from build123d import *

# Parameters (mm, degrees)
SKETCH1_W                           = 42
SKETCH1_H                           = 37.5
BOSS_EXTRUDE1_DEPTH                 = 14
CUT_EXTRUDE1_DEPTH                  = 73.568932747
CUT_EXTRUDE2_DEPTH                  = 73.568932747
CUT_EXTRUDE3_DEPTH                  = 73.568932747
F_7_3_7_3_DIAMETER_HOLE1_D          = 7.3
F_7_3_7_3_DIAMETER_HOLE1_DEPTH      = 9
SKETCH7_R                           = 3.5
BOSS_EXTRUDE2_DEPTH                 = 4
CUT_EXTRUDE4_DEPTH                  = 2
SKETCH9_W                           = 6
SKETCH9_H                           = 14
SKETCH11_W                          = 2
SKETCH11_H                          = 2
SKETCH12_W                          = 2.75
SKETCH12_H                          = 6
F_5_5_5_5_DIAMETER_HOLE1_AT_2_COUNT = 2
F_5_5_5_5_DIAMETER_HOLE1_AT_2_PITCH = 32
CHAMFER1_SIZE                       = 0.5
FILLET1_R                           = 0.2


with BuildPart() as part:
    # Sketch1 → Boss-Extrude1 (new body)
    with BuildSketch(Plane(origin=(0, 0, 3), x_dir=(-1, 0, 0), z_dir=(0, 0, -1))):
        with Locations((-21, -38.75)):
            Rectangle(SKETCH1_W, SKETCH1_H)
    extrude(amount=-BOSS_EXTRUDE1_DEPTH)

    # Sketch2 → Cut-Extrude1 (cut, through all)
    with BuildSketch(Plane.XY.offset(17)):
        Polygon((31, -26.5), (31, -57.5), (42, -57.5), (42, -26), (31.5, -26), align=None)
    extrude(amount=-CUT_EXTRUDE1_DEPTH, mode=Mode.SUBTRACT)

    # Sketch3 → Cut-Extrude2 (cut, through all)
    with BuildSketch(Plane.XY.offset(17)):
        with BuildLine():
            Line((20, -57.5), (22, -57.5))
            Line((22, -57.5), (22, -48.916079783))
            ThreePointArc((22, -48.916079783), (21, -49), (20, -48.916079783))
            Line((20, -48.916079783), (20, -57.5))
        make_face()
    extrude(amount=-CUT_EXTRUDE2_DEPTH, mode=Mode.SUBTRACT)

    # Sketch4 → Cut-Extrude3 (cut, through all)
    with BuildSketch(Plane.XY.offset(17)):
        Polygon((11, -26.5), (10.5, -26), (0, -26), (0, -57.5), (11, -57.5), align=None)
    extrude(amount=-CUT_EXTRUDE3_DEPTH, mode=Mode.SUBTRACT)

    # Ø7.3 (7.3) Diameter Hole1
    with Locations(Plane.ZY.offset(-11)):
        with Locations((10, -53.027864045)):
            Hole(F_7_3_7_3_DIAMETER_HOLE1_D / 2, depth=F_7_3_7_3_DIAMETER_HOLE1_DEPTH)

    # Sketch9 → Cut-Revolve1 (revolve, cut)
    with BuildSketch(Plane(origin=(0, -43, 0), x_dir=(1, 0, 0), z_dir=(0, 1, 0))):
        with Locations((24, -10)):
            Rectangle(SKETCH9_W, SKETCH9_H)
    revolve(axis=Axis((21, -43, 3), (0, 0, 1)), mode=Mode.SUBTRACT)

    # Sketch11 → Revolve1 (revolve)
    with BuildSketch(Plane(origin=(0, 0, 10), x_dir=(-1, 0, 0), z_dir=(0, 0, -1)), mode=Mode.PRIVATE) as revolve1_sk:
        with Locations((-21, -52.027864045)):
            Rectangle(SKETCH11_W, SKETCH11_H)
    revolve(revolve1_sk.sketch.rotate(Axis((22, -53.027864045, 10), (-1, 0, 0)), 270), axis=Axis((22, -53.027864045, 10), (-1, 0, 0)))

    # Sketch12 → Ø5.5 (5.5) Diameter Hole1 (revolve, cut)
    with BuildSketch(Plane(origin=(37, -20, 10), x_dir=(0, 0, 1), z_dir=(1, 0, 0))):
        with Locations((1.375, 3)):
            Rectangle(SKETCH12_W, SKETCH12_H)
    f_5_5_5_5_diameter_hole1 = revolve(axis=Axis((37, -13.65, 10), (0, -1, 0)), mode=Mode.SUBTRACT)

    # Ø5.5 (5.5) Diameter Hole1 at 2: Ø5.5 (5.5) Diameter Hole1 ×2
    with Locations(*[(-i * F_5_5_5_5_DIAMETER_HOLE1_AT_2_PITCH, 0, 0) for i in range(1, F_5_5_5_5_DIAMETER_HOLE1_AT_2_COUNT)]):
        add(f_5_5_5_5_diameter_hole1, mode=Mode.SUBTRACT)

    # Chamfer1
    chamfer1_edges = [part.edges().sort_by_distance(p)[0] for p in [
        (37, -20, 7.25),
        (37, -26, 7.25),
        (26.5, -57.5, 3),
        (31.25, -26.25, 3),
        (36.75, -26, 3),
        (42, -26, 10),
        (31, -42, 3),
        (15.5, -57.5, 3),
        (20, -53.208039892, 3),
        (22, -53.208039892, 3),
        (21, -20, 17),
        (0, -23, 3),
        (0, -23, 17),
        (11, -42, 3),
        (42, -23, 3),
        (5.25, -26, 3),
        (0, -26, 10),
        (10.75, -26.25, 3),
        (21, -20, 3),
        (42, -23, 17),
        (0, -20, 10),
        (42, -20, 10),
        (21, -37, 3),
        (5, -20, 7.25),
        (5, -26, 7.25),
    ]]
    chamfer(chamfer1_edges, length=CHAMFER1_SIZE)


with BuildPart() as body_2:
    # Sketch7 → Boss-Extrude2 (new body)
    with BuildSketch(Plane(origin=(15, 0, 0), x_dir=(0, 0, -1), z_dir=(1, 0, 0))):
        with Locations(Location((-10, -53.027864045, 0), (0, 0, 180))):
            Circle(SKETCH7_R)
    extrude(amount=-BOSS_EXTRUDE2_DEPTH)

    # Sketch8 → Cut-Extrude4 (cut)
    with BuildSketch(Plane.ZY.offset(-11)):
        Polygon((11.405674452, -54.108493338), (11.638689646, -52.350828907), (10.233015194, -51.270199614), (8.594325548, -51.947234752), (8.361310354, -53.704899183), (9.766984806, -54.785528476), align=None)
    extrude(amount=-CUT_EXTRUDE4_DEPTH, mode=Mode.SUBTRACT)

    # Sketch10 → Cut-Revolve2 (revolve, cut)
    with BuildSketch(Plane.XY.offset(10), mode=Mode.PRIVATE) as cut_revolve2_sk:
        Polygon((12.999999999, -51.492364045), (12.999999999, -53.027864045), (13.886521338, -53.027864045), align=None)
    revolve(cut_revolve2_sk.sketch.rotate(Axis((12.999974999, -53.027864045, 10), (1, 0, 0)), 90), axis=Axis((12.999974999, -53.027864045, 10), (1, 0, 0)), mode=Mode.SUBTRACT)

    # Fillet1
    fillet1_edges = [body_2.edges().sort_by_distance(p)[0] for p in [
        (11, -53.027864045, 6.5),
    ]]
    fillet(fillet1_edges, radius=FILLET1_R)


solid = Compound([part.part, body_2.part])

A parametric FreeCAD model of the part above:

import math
import FreeCAD as App
import Part
import Sketcher

V = App.Vector
Q = App.Units.Quantity


def edges_at(feature, points):
    """Names of the edges that pass closest to the given points."""
    edges = feature.Shape.Edges
    near = lambda p: min(range(len(edges)), key=lambda i: edges[i].distToShape(Part.Vertex(*p))[0])
    return sorted({f"Edge{near(p) + 1}" for p in points})

doc = App.newDocument("Part")
params = doc.addObject("Spreadsheet::Sheet", "Params")
for row, (alias, value) in enumerate([
    ("sketch1_width", "42 mm"),
    ("sketch1_height", "37.5 mm"),
    ("pad1_length", "14 mm"),
    ("sketch2_width", "11 mm"),
    ("sketch2_height", "31 mm"),
    ("sketch2_width2", "10.5 mm"),
    ("sketch3_radius", "6 mm"),
    ("sketch3_width", "2 mm"),
    ("sketch4_width", "11 mm"),
    ("sketch4_height", "31 mm"),
    ("sketch4_width2", "10.5 mm"),
    ("sketch5_diameter", "7.3 mm"),
    ("hole_diameter", "7.3 mm"),
    ("hole_depth", "9 mm"),
    ("sketch6_width", "6 mm"),
    ("sketch6_height", "14 mm"),
    ("groove_angle", "360 deg"),
    ("sketch7_width", "2 mm"),
    ("revolution_angle", "360 deg"),
    ("sketch8_width", "6 mm"),
    ("sketch8_height", "2.75 mm"),
    ("groove2_angle", "360 deg"),
    ("linearpattern_pitch", "32 mm"),
    ("chamfer_size", "0.5 mm"),
    ("sketch9_diameter", "7 mm"),
    ("pad2_length", "4 mm"),
    ("pocket4_length", "2 mm"),
    ("groove3_angle", "360 deg"),
    ("fillet_radius", "0.2 mm"),
], start=1):
    params.set(f"A{row}", alias)
    params.set(f"B{row}", "=" + value)
    params.setAlias(f"B{row}", alias)

body = doc.addObject("PartDesign::Body", "Body")

# Sketch on XY plane
sketch1 = body.newObject("Sketcher::SketchObject", "Sketch")
sketch1.AttachmentSupport = (doc.getObject("XY_Plane"), [""])
sketch1.MapMode = "FlatFace"
sketch1.AttachmentOffset = App.Placement(V(0, 0, 3), App.Rotation())
sketch1.addGeometry(Part.LineSegment(V(42, -20, 0), V(42, -58, 0)), False)
sketch1.addGeometry(Part.LineSegment(V(42, -58, 0), V(0, -58, 0)), False)
sketch1.addGeometry(Part.LineSegment(V(0, -58, 0), V(0, -20, 0)), False)
sketch1.addGeometry(Part.LineSegment(V(0, -20, 0), V(42, -20, 0)), False)
sketch1.addConstraint(Sketcher.Constraint("Coincident", 0, 2, 1, 1))
sketch1.addConstraint(Sketcher.Constraint("Coincident", 1, 2, 2, 1))
sketch1.addConstraint(Sketcher.Constraint("Coincident", 2, 2, 3, 1))
sketch1.addConstraint(Sketcher.Constraint("Coincident", 3, 2, 0, 1))
sketch1.addConstraint(Sketcher.Constraint("Vertical", 0))
sketch1.addConstraint(Sketcher.Constraint("Horizontal", 1))
sketch1.addConstraint(Sketcher.Constraint("Vertical", 2))
sketch1.addConstraint(Sketcher.Constraint("Horizontal", 3))
sketch1.addConstraint(Sketcher.Constraint("PointOnObject", 1, 2, -2))
sketch1.addConstraint(Sketcher.Constraint("DistanceX", 1, 2, 1, 1, 42.0))
sketch1.addConstraint(Sketcher.Constraint("DistanceY", 0, 2, 0, 1, 37.5))
sketch1.addConstraint(Sketcher.Constraint("DistanceY", 2, 2, -1, 1, 20.0))
sketch1.setExpression("Constraints[9]", "Params.sketch1_width")
sketch1.setExpression("Constraints[10]", "Params.sketch1_height")
pad1 = body.newObject("PartDesign::Pad", "Pad")
pad1.Profile = sketch1
pad1.setExpression("Length", "Params.pad1_length")

# Sketch on XY plane
sketch2 = body.newObject("Sketcher::SketchObject", "Sketch001")
sketch2.AttachmentSupport = (doc.getObject("XY_Plane"), [""])
sketch2.MapMode = "FlatFace"
sketch2.AttachmentOffset = App.Placement(V(0, 0, 17), App.Rotation())
sketch2.addGeometry(Part.LineSegment(V(31, -26.5, 0), V(31, -57.5, 0)), False)
sketch2.addGeometry(Part.LineSegment(V(31, -57.5, 0), V(42, -57.5, 0)), False)
sketch2.addGeometry(Part.LineSegment(V(42, -57.5, 0), V(42, -26, 0)), False)
sketch2.addGeometry(Part.LineSegment(V(42, -26, 0), V(31.5, -26, 0)), False)
sketch2.addGeometry(Part.LineSegment(V(31.5, -26, 0), V(31, -26.5, 0)), False)
sketch2.addConstraint(Sketcher.Constraint("Coincident", 0, 2, 1, 1))
sketch2.addConstraint(Sketcher.Constraint("Coincident", 1, 2, 2, 1))
sketch2.addConstraint(Sketcher.Constraint("Coincident", 2, 2, 3, 1))
sketch2.addConstraint(Sketcher.Constraint("Coincident", 3, 2, 4, 1))
sketch2.addConstraint(Sketcher.Constraint("Coincident", 4, 2, 0, 1))
sketch2.addConstraint(Sketcher.Constraint("Vertical", 0))
sketch2.addConstraint(Sketcher.Constraint("Horizontal", 1))
sketch2.addConstraint(Sketcher.Constraint("Vertical", 2))
sketch2.addConstraint(Sketcher.Constraint("Horizontal", 3))
sketch2.addConstraint(Sketcher.Constraint("DistanceX", 1, 1, 1, 2, 11.0))
sketch2.addConstraint(Sketcher.Constraint("DistanceY", 0, 2, 0, 1, 31.0))
sketch2.addConstraint(Sketcher.Constraint("Angle", 4, Q("-135 deg")))
sketch2.addConstraint(Sketcher.Constraint("DistanceX", 3, 2, 3, 1, 10.5))
sketch2.addConstraint(Sketcher.Constraint("DistanceX", -1, 1, 0, 2, 31.0))
sketch2.addConstraint(Sketcher.Constraint("DistanceY", 2, 2, -1, 1, 26.0))
sketch2.setExpression("Constraints[9]", "Params.sketch2_width")
sketch2.setExpression("Constraints[10]", "Params.sketch2_height")
sketch2.setExpression("Constraints[12]", "Params.sketch2_width2")
pocket1 = body.newObject("PartDesign::Pocket", "Pocket")
pocket1.Profile = sketch2
pocket1.Type = "ThroughAll"

# Sketch on XY plane
sketch3 = body.newObject("Sketcher::SketchObject", "Sketch002")
sketch3.AttachmentSupport = (doc.getObject("XY_Plane"), [""])
sketch3.MapMode = "FlatFace"
sketch3.AttachmentOffset = App.Placement(V(0, 0, 17), App.Rotation())
sketch3.addGeometry(Part.LineSegment(V(20, -57.5, 0), V(22, -57.5, 0)), False)
sketch3.addGeometry(Part.LineSegment(V(22, -57.5, 0), V(22, -48.9, 0)), False)
sketch3.addGeometry(Part.ArcOfCircle(Part.Circle(V(21, -43, 0), V(0, 0, 1), 6), math.radians(-99.59), math.radians(-80.41)), False)
sketch3.addGeometry(Part.LineSegment(V(20, -48.9, 0), V(20, -57.5, 0)), False)
sketch3.addConstraint(Sketcher.Constraint("Coincident", 0, 2, 1, 1))
sketch3.addConstraint(Sketcher.Constraint("Coincident", 1, 2, 2, 2))
sketch3.addConstraint(Sketcher.Constraint("Coincident", 2, 1, 3, 1))
sketch3.addConstraint(Sketcher.Constraint("Coincident", 3, 2, 0, 1))
sketch3.addConstraint(Sketcher.Constraint("Horizontal", 0))
sketch3.addConstraint(Sketcher.Constraint("Vertical", 1))
sketch3.addConstraint(Sketcher.Constraint("Vertical", 3))
sketch3.addConstraint(Sketcher.Constraint("Horizontal", 1, 2, 2, 1))
sketch3.addConstraint(Sketcher.Constraint("Radius", 2, 6.0))
sketch3.addConstraint(Sketcher.Constraint("DistanceX", 0, 1, 0, 2, 2.0))
sketch3.addConstraint(Sketcher.Constraint("DistanceX", -1, 1, 2, 3, 21.0))
sketch3.addConstraint(Sketcher.Constraint("DistanceY", 2, 3, -1, 1, 43.0))
sketch3.addConstraint(Sketcher.Constraint("DistanceY", 0, 2, -1, 1, 57.5))
sketch3.setExpression("Constraints[8]", "Params.sketch3_radius")
sketch3.setExpression("Constraints[9]", "Params.sketch3_width")
pocket2 = body.newObject("PartDesign::Pocket", "Pocket001")
pocket2.Profile = sketch3
pocket2.Type = "ThroughAll"

# Sketch on XY plane
sketch4 = body.newObject("Sketcher::SketchObject", "Sketch003")
sketch4.AttachmentSupport = (doc.getObject("XY_Plane"), [""])
sketch4.MapMode = "FlatFace"
sketch4.AttachmentOffset = App.Placement(V(0, 0, 17), App.Rotation())
sketch4.addGeometry(Part.LineSegment(V(11, -26.5, 0), V(10.5, -26, 0)), False)
sketch4.addGeometry(Part.LineSegment(V(10.5, -26, 0), V(0, -26, 0)), False)
sketch4.addGeometry(Part.LineSegment(V(0, -26, 0), V(0, -57.5, 0)), False)
sketch4.addGeometry(Part.LineSegment(V(0, -57.5, 0), V(11, -57.5, 0)), False)
sketch4.addGeometry(Part.LineSegment(V(11, -57.5, 0), V(11, -26.5, 0)), False)
sketch4.addConstraint(Sketcher.Constraint("Coincident", 0, 2, 1, 1))
sketch4.addConstraint(Sketcher.Constraint("Coincident", 1, 2, 2, 1))
sketch4.addConstraint(Sketcher.Constraint("Coincident", 2, 2, 3, 1))
sketch4.addConstraint(Sketcher.Constraint("Coincident", 3, 2, 4, 1))
sketch4.addConstraint(Sketcher.Constraint("Coincident", 4, 2, 0, 1))
sketch4.addConstraint(Sketcher.Constraint("Horizontal", 1))
sketch4.addConstraint(Sketcher.Constraint("Vertical", 2))
sketch4.addConstraint(Sketcher.Constraint("Horizontal", 3))
sketch4.addConstraint(Sketcher.Constraint("Vertical", 4))
sketch4.addConstraint(Sketcher.Constraint("PointOnObject", 1, 2, -2))
sketch4.addConstraint(Sketcher.Constraint("DistanceX", 3, 1, 3, 2, 11.0))
sketch4.addConstraint(Sketcher.Constraint("DistanceY", 4, 1, 4, 2, 31.0))
sketch4.addConstraint(Sketcher.Constraint("Angle", 0, Q("135 deg")))
sketch4.addConstraint(Sketcher.Constraint("DistanceX", 1, 2, 1, 1, 10.5))
sketch4.addConstraint(Sketcher.Constraint("DistanceY", 0, 2, -1, 1, 26.0))
sketch4.setExpression("Constraints[10]", "Params.sketch4_width")
sketch4.setExpression("Constraints[11]", "Params.sketch4_height")
sketch4.setExpression("Constraints[13]", "Params.sketch4_width2")
pocket3 = body.newObject("PartDesign::Pocket", "Pocket002")
pocket3.Profile = sketch4
pocket3.Type = "ThroughAll"

# Sketch on YZ plane
sketch5 = body.newObject("Sketcher::SketchObject", "Sketch004")
sketch5.AttachmentSupport = (doc.getObject("YZ_Plane"), [""])
sketch5.MapMode = "FlatFace"
sketch5.AttachmentOffset = App.Placement(V(0, 0, 11), App.Rotation())
sketch5.addGeometry(Part.Circle(V(-53, 10, 0), V(0, 0, 1), 3.6), False)
sketch5.addConstraint(Sketcher.Constraint("Diameter", 0, 7.3))
sketch5.addConstraint(Sketcher.Constraint("DistanceY", -1, 1, 0, 3, 10.0))
sketch5.addConstraint(Sketcher.Constraint("DistanceX", 0, 3, -1, 1, 53.027864))
sketch5.setExpression("Constraints[0]", "Params.sketch5_diameter")
doc.recompute()
hole = body.newObject("PartDesign::Hole", "Hole")
hole.Profile = sketch5
hole.ThreadType = "None"
hole.setExpression("Diameter", "Params.hole_diameter")
hole.DepthType = "Dimension"
hole.setExpression("Depth", "Params.hole_depth")
hole.DrillPoint = "Flat"
hole.Reversed = True

# Sketch on XZ plane
sketch6 = body.newObject("Sketcher::SketchObject", "Sketch005")
sketch6.AttachmentSupport = (doc.getObject("XZ_Plane"), [""])
sketch6.MapMode = "FlatFace"
sketch6.AttachmentOffset = App.Placement(V(0, 0, 43), App.Rotation())
sketch6.addGeometry(Part.LineSegment(V(21, 3, 0), V(21, 17, 0)), False)
sketch6.addGeometry(Part.LineSegment(V(21, 17, 0), V(27, 17, 0)), False)
sketch6.addGeometry(Part.LineSegment(V(27, 17, 0), V(27, 3, 0)), False)
sketch6.addGeometry(Part.LineSegment(V(27, 3, 0), V(21, 3, 0)), False)
sketch6.addGeometry(Part.LineSegment(V(21, 3, 0), V(21, 17, 0)), True)  # axis
sketch6.addConstraint(Sketcher.Constraint("Coincident", 0, 2, 1, 1))
sketch6.addConstraint(Sketcher.Constraint("Coincident", 1, 2, 2, 1))
sketch6.addConstraint(Sketcher.Constraint("Coincident", 2, 2, 3, 1))
sketch6.addConstraint(Sketcher.Constraint("Coincident", 3, 2, 0, 1))
sketch6.addConstraint(Sketcher.Constraint("Vertical", 0))
sketch6.addConstraint(Sketcher.Constraint("Horizontal", 1))
sketch6.addConstraint(Sketcher.Constraint("Vertical", 2))
sketch6.addConstraint(Sketcher.Constraint("Horizontal", 3))
sketch6.addConstraint(Sketcher.Constraint("Vertical", 4))
sketch6.addConstraint(Sketcher.Constraint("Coincident", 4, 1, 3, 2))
sketch6.addConstraint(Sketcher.Constraint("Horizontal", 1, 2, 4, 2))
sketch6.addConstraint(Sketcher.Constraint("DistanceX", 1, 1, 1, 2, 6.0))
sketch6.addConstraint(Sketcher.Constraint("DistanceY", 0, 1, 0, 2, 14.0))
sketch6.addConstraint(Sketcher.Constraint("DistanceX", -1, 1, 0, 2, 21.0))
sketch6.addConstraint(Sketcher.Constraint("DistanceY", -1, 1, 0, 2, 17.0))
sketch6.setExpression("Constraints[11]", "Params.sketch6_width")
sketch6.setExpression("Constraints[12]", "Params.sketch6_height")
groove = body.newObject("PartDesign::Groove", "Groove")
groove.Profile = sketch6
groove.ReferenceAxis = (sketch6, ["Axis0"])
groove.setExpression("Angle", "Params.groove_angle")

# Sketch on XY plane
sketch7 = body.newObject("Sketcher::SketchObject", "Sketch006")
sketch7.AttachmentSupport = (doc.getObject("XY_Plane"), [""])
sketch7.MapMode = "FlatFace"
sketch7.AttachmentOffset = App.Placement(V(0, 0, 10), App.Rotation())
sketch7.addGeometry(Part.LineSegment(V(22, -51, 0), V(22, -53, 0)), False)
sketch7.addGeometry(Part.LineSegment(V(22, -53, 0), V(20, -53, 0)), False)
sketch7.addGeometry(Part.LineSegment(V(20, -53, 0), V(20, -51, 0)), False)
sketch7.addGeometry(Part.LineSegment(V(20, -51, 0), V(22, -51, 0)), False)
sketch7.addGeometry(Part.LineSegment(V(22, -53, 0), V(20, -53, 0)), True)  # axis
sketch7.addConstraint(Sketcher.Constraint("Coincident", 0, 2, 1, 1))
sketch7.addConstraint(Sketcher.Constraint("Coincident", 1, 2, 2, 1))
sketch7.addConstraint(Sketcher.Constraint("Coincident", 2, 2, 3, 1))
sketch7.addConstraint(Sketcher.Constraint("Coincident", 3, 2, 0, 1))
sketch7.addConstraint(Sketcher.Constraint("Vertical", 0))
sketch7.addConstraint(Sketcher.Constraint("Horizontal", 1))
sketch7.addConstraint(Sketcher.Constraint("Vertical", 2))
sketch7.addConstraint(Sketcher.Constraint("Horizontal", 3))
sketch7.addConstraint(Sketcher.Constraint("Horizontal", 4))
sketch7.addConstraint(Sketcher.Constraint("Coincident", 4, 1, 0, 2))
sketch7.addConstraint(Sketcher.Constraint("Vertical", 2, 2, 4, 2))
sketch7.addConstraint(Sketcher.Constraint("Equal", 4, 0))
sketch7.addConstraint(Sketcher.Constraint("DistanceX", 1, 2, 1, 1, 2.0))
sketch7.addConstraint(Sketcher.Constraint("DistanceX", -1, 1, 0, 2, 22.0))
sketch7.addConstraint(Sketcher.Constraint("DistanceY", 0, 2, -1, 1, 53.027864))
sketch7.setExpression("Constraints[12]", "Params.sketch7_width")
revolution = body.newObject("PartDesign::Revolution", "Revolution")
revolution.Profile = sketch7
revolution.ReferenceAxis = (sketch7, ["Axis0"])
revolution.setExpression("Angle", "Params.revolution_angle")

# Sketch on YZ plane
sketch8 = body.newObject("Sketcher::SketchObject", "Sketch007")
sketch8.AttachmentSupport = (doc.getObject("YZ_Plane"), [""])
sketch8.MapMode = "FlatFace"
sketch8.AttachmentOffset = App.Placement(V(0, 0, 37), App.Rotation())
sketch8.addGeometry(Part.LineSegment(V(-26, 10, 0), V(-20, 10, 0)), False)
sketch8.addGeometry(Part.LineSegment(V(-20, 10, 0), V(-20, 12.8, 0)), False)
sketch8.addGeometry(Part.LineSegment(V(-20, 12.8, 0), V(-26, 12.8, 0)), False)
sketch8.addGeometry(Part.LineSegment(V(-26, 12.8, 0), V(-26, 10, 0)), False)
sketch8.addGeometry(Part.LineSegment(V(-20, 10, 0), V(-26, 10, 0)), True)  # axis
sketch8.addConstraint(Sketcher.Constraint("Coincident", 0, 2, 1, 1))
sketch8.addConstraint(Sketcher.Constraint("Coincident", 1, 2, 2, 1))
sketch8.addConstraint(Sketcher.Constraint("Coincident", 2, 2, 3, 1))
sketch8.addConstraint(Sketcher.Constraint("Coincident", 3, 2, 0, 1))
sketch8.addConstraint(Sketcher.Constraint("Horizontal", 0))
sketch8.addConstraint(Sketcher.Constraint("Vertical", 1))
sketch8.addConstraint(Sketcher.Constraint("Horizontal", 2))
sketch8.addConstraint(Sketcher.Constraint("Vertical", 3))
sketch8.addConstraint(Sketcher.Constraint("Horizontal", 4))
sketch8.addConstraint(Sketcher.Constraint("Coincident", 4, 1, 0, 2))
sketch8.addConstraint(Sketcher.Constraint("Vertical", 2, 2, 4, 2))
sketch8.addConstraint(Sketcher.Constraint("DistanceX", 0, 1, 0, 2, 6.0))
sketch8.addConstraint(Sketcher.Constraint("DistanceX", 0, 2, -1, 1, 20.0))
sketch8.addConstraint(Sketcher.Constraint("DistanceY", -1, 1, 0, 2, 10.0))
sketch8.addConstraint(Sketcher.Constraint("DistanceY", 1, 1, 1, 2, 2.75))
sketch8.setExpression("Constraints[11]", "Params.sketch8_width")
sketch8.setExpression("Constraints[14]", "Params.sketch8_height")
groove2 = body.newObject("PartDesign::Groove", "Groove001")
groove2.Profile = sketch8
groove2.ReferenceAxis = (sketch8, ["Axis0"])
groove2.setExpression("Angle", "Params.groove2_angle")
doc.recompute()

linearpattern = body.newObject("PartDesign::LinearPattern", "LinearPattern")
linearpattern.Originals = [groove2]
linearpattern.Direction = (doc.getObject("X_Axis"), [""])
linearpattern.Mode = "offset"
linearpattern.setExpression("Offset", "Params.linearpattern_pitch")
linearpattern.Occurrences = 2
linearpattern.Reversed = True
body.Tip = linearpattern
doc.recompute()

chamfer = body.newObject("PartDesign::Chamfer", "Chamfer")
chamfer.Base = (linearpattern, edges_at(linearpattern, [
    (37, -20, 7.25),
    (37, -26, 7.25),
    (26.5, -57.5, 3),
    (31.25, -26.25, 3),
    (36.75, -26, 3),
    (42, -26, 10),
    (31, -42, 3),
    (15.5, -57.5, 3),
    (20, -53.208, 3),
    (22, -53.208, 3),
    (21, -20, 17),
    (0, -23, 3),
    (0, -23, 17),
    (11, -42, 3),
    (42, -23, 3),
    (5.25, -26, 3),
    (0, -26, 10),
    (10.75, -26.25, 3),
    (21, -20, 3),
    (42, -23, 17),
    (0, -20, 10),
    (42, -20, 10),
    (21, -37, 3),
    (5, -20, 7.25),
    (5, -26, 7.25),
]))
chamfer.setExpression("Size", "Params.chamfer_size")
body2 = doc.addObject("PartDesign::Body", "Body001")

# Sketch on YZ plane
sketch9 = body2.newObject("Sketcher::SketchObject", "Sketch008")
sketch9.AttachmentSupport = (doc.getObject("YZ_Plane001"), [""])
sketch9.MapMode = "FlatFace"
sketch9.AttachmentOffset = App.Placement(V(0, 0, 15), App.Rotation())
sketch9.addGeometry(Part.Circle(V(-53, 10, 0), V(0, 0, 1), 3.5), False)
sketch9.addConstraint(Sketcher.Constraint("Diameter", 0, 7.0))
sketch9.addConstraint(Sketcher.Constraint("DistanceY", -1, 1, 0, 3, 10.0))
sketch9.addConstraint(Sketcher.Constraint("DistanceX", 0, 3, -1, 1, 53.027864))
sketch9.setExpression("Constraints[0]", "Params.sketch9_diameter")
pad2 = body2.newObject("PartDesign::Pad", "Pad001")
pad2.Profile = sketch9
pad2.setExpression("Length", "Params.pad2_length")
pad2.Reversed = True

# Sketch on YZ plane
sketch10 = body2.newObject("Sketcher::SketchObject", "Sketch009")
sketch10.AttachmentSupport = (doc.getObject("YZ_Plane001"), [""])
sketch10.MapMode = "FlatFace"
sketch10.AttachmentOffset = App.Placement(V(0, 0, 11), App.Rotation())
sketch10.addGeometry(Part.LineSegment(V(-54.1, 11.4, 0), V(-52.4, 11.6, 0)), False)
sketch10.addGeometry(Part.LineSegment(V(-52.4, 11.6, 0), V(-51.3, 10.2, 0)), False)
sketch10.addGeometry(Part.LineSegment(V(-51.3, 10.2, 0), V(-51.9, 8.6, 0)), False)
sketch10.addGeometry(Part.LineSegment(V(-51.9, 8.6, 0), V(-53.7, 8.4, 0)), False)
sketch10.addGeometry(Part.LineSegment(V(-53.7, 8.4, 0), V(-54.8, 9.8, 0)), False)
sketch10.addGeometry(Part.LineSegment(V(-54.8, 9.8, 0), V(-54.1, 11.4, 0)), False)
sketch10.addConstraint(Sketcher.Constraint("Coincident", 0, 2, 1, 1))
sketch10.addConstraint(Sketcher.Constraint("Coincident", 1, 2, 2, 1))
sketch10.addConstraint(Sketcher.Constraint("Coincident", 2, 2, 3, 1))
sketch10.addConstraint(Sketcher.Constraint("Coincident", 3, 2, 4, 1))
sketch10.addConstraint(Sketcher.Constraint("Coincident", 4, 2, 5, 1))
sketch10.addConstraint(Sketcher.Constraint("Coincident", 5, 2, 0, 1))
sketch10.addConstraint(Sketcher.Constraint("Parallel", 0, 3))
sketch10.addConstraint(Sketcher.Constraint("Parallel", 1, 4))
sketch10.addConstraint(Sketcher.Constraint("Parallel", 2, 5))
sketch10.addConstraint(Sketcher.Constraint("Equal", 0, 1))
sketch10.addConstraint(Sketcher.Constraint("Equal", 1, 2))
sketch10.addConstraint(Sketcher.Constraint("Equal", 2, 3))
sketch10.addConstraint(Sketcher.Constraint("DistanceX", 1, 2, -1, 1, 51.2702))
sketch10.addConstraint(Sketcher.Constraint("DistanceX", 3, 2, -1, 1, 53.704899))
sketch10.addConstraint(Sketcher.Constraint("DistanceX", 0, 2, -1, 1, 52.350829))
sketch10.addConstraint(Sketcher.Constraint("DistanceY", -1, 1, 0, 2, 11.63869))
sketch10.addConstraint(Sketcher.Constraint("DistanceY", -1, 1, 3, 2, 8.36131))
sketch10.addConstraint(Sketcher.Constraint("DistanceY", 2, 2, 1, 2, 1.63869))
pocket4 = body2.newObject("PartDesign::Pocket", "Pocket003")
pocket4.Profile = sketch10
pocket4.setExpression("Length", "Params.pocket4_length")
pocket4.Reversed = True

# Sketch on XY plane
sketch11 = body2.newObject("Sketcher::SketchObject", "Sketch010")
sketch11.AttachmentSupport = (doc.getObject("XY_Plane001"), [""])
sketch11.MapMode = "FlatFace"
sketch11.AttachmentOffset = App.Placement(V(0, 0, 10), App.Rotation())
sketch11.addGeometry(Part.LineSegment(V(13, -51.5, 0), V(13, -53, 0)), False)
sketch11.addGeometry(Part.LineSegment(V(13, -53, 0), V(13.9, -53, 0)), False)
sketch11.addGeometry(Part.LineSegment(V(13.9, -53, 0), V(13, -51.5, 0)), False)
sketch11.addGeometry(Part.LineSegment(V(13, -53, 0), V(13.9, -53, 0)), True)  # axis
sketch11.addConstraint(Sketcher.Constraint("Coincident", 0, 2, 1, 1))
sketch11.addConstraint(Sketcher.Constraint("Coincident", 1, 2, 2, 1))
sketch11.addConstraint(Sketcher.Constraint("Coincident", 2, 2, 0, 1))
sketch11.addConstraint(Sketcher.Constraint("Vertical", 0))
sketch11.addConstraint(Sketcher.Constraint("Horizontal", 1))
sketch11.addConstraint(Sketcher.Constraint("Horizontal", 3))
sketch11.addConstraint(Sketcher.Constraint("Coincident", 3, 1, 0, 2))
sketch11.addConstraint(Sketcher.Constraint("Equal", 1, 3))
sketch11.addConstraint(Sketcher.Constraint("Angle", 2, Q("120 deg")))
sketch11.addConstraint(Sketcher.Constraint("DistanceX", -1, 1, 0, 2, 13.0))
sketch11.addConstraint(Sketcher.Constraint("DistanceY", 0, 2, 0, 1, 1.5355))
sketch11.addConstraint(Sketcher.Constraint("DistanceY", 0, 2, -1, 1, 53.027864))
groove3 = body2.newObject("PartDesign::Groove", "Groove002")
groove3.Profile = sketch11
groove3.ReferenceAxis = (sketch11, ["Axis0"])
groove3.setExpression("Angle", "Params.groove3_angle")
doc.recompute()

fillet = body2.newObject("PartDesign::Fillet", "Fillet")
fillet.Base = (groove3, edges_at(groove3, [(11, -53.028, 6.5)]))
fillet.setExpression("Radius", "Params.fillet_radius")

doc.recompute()
